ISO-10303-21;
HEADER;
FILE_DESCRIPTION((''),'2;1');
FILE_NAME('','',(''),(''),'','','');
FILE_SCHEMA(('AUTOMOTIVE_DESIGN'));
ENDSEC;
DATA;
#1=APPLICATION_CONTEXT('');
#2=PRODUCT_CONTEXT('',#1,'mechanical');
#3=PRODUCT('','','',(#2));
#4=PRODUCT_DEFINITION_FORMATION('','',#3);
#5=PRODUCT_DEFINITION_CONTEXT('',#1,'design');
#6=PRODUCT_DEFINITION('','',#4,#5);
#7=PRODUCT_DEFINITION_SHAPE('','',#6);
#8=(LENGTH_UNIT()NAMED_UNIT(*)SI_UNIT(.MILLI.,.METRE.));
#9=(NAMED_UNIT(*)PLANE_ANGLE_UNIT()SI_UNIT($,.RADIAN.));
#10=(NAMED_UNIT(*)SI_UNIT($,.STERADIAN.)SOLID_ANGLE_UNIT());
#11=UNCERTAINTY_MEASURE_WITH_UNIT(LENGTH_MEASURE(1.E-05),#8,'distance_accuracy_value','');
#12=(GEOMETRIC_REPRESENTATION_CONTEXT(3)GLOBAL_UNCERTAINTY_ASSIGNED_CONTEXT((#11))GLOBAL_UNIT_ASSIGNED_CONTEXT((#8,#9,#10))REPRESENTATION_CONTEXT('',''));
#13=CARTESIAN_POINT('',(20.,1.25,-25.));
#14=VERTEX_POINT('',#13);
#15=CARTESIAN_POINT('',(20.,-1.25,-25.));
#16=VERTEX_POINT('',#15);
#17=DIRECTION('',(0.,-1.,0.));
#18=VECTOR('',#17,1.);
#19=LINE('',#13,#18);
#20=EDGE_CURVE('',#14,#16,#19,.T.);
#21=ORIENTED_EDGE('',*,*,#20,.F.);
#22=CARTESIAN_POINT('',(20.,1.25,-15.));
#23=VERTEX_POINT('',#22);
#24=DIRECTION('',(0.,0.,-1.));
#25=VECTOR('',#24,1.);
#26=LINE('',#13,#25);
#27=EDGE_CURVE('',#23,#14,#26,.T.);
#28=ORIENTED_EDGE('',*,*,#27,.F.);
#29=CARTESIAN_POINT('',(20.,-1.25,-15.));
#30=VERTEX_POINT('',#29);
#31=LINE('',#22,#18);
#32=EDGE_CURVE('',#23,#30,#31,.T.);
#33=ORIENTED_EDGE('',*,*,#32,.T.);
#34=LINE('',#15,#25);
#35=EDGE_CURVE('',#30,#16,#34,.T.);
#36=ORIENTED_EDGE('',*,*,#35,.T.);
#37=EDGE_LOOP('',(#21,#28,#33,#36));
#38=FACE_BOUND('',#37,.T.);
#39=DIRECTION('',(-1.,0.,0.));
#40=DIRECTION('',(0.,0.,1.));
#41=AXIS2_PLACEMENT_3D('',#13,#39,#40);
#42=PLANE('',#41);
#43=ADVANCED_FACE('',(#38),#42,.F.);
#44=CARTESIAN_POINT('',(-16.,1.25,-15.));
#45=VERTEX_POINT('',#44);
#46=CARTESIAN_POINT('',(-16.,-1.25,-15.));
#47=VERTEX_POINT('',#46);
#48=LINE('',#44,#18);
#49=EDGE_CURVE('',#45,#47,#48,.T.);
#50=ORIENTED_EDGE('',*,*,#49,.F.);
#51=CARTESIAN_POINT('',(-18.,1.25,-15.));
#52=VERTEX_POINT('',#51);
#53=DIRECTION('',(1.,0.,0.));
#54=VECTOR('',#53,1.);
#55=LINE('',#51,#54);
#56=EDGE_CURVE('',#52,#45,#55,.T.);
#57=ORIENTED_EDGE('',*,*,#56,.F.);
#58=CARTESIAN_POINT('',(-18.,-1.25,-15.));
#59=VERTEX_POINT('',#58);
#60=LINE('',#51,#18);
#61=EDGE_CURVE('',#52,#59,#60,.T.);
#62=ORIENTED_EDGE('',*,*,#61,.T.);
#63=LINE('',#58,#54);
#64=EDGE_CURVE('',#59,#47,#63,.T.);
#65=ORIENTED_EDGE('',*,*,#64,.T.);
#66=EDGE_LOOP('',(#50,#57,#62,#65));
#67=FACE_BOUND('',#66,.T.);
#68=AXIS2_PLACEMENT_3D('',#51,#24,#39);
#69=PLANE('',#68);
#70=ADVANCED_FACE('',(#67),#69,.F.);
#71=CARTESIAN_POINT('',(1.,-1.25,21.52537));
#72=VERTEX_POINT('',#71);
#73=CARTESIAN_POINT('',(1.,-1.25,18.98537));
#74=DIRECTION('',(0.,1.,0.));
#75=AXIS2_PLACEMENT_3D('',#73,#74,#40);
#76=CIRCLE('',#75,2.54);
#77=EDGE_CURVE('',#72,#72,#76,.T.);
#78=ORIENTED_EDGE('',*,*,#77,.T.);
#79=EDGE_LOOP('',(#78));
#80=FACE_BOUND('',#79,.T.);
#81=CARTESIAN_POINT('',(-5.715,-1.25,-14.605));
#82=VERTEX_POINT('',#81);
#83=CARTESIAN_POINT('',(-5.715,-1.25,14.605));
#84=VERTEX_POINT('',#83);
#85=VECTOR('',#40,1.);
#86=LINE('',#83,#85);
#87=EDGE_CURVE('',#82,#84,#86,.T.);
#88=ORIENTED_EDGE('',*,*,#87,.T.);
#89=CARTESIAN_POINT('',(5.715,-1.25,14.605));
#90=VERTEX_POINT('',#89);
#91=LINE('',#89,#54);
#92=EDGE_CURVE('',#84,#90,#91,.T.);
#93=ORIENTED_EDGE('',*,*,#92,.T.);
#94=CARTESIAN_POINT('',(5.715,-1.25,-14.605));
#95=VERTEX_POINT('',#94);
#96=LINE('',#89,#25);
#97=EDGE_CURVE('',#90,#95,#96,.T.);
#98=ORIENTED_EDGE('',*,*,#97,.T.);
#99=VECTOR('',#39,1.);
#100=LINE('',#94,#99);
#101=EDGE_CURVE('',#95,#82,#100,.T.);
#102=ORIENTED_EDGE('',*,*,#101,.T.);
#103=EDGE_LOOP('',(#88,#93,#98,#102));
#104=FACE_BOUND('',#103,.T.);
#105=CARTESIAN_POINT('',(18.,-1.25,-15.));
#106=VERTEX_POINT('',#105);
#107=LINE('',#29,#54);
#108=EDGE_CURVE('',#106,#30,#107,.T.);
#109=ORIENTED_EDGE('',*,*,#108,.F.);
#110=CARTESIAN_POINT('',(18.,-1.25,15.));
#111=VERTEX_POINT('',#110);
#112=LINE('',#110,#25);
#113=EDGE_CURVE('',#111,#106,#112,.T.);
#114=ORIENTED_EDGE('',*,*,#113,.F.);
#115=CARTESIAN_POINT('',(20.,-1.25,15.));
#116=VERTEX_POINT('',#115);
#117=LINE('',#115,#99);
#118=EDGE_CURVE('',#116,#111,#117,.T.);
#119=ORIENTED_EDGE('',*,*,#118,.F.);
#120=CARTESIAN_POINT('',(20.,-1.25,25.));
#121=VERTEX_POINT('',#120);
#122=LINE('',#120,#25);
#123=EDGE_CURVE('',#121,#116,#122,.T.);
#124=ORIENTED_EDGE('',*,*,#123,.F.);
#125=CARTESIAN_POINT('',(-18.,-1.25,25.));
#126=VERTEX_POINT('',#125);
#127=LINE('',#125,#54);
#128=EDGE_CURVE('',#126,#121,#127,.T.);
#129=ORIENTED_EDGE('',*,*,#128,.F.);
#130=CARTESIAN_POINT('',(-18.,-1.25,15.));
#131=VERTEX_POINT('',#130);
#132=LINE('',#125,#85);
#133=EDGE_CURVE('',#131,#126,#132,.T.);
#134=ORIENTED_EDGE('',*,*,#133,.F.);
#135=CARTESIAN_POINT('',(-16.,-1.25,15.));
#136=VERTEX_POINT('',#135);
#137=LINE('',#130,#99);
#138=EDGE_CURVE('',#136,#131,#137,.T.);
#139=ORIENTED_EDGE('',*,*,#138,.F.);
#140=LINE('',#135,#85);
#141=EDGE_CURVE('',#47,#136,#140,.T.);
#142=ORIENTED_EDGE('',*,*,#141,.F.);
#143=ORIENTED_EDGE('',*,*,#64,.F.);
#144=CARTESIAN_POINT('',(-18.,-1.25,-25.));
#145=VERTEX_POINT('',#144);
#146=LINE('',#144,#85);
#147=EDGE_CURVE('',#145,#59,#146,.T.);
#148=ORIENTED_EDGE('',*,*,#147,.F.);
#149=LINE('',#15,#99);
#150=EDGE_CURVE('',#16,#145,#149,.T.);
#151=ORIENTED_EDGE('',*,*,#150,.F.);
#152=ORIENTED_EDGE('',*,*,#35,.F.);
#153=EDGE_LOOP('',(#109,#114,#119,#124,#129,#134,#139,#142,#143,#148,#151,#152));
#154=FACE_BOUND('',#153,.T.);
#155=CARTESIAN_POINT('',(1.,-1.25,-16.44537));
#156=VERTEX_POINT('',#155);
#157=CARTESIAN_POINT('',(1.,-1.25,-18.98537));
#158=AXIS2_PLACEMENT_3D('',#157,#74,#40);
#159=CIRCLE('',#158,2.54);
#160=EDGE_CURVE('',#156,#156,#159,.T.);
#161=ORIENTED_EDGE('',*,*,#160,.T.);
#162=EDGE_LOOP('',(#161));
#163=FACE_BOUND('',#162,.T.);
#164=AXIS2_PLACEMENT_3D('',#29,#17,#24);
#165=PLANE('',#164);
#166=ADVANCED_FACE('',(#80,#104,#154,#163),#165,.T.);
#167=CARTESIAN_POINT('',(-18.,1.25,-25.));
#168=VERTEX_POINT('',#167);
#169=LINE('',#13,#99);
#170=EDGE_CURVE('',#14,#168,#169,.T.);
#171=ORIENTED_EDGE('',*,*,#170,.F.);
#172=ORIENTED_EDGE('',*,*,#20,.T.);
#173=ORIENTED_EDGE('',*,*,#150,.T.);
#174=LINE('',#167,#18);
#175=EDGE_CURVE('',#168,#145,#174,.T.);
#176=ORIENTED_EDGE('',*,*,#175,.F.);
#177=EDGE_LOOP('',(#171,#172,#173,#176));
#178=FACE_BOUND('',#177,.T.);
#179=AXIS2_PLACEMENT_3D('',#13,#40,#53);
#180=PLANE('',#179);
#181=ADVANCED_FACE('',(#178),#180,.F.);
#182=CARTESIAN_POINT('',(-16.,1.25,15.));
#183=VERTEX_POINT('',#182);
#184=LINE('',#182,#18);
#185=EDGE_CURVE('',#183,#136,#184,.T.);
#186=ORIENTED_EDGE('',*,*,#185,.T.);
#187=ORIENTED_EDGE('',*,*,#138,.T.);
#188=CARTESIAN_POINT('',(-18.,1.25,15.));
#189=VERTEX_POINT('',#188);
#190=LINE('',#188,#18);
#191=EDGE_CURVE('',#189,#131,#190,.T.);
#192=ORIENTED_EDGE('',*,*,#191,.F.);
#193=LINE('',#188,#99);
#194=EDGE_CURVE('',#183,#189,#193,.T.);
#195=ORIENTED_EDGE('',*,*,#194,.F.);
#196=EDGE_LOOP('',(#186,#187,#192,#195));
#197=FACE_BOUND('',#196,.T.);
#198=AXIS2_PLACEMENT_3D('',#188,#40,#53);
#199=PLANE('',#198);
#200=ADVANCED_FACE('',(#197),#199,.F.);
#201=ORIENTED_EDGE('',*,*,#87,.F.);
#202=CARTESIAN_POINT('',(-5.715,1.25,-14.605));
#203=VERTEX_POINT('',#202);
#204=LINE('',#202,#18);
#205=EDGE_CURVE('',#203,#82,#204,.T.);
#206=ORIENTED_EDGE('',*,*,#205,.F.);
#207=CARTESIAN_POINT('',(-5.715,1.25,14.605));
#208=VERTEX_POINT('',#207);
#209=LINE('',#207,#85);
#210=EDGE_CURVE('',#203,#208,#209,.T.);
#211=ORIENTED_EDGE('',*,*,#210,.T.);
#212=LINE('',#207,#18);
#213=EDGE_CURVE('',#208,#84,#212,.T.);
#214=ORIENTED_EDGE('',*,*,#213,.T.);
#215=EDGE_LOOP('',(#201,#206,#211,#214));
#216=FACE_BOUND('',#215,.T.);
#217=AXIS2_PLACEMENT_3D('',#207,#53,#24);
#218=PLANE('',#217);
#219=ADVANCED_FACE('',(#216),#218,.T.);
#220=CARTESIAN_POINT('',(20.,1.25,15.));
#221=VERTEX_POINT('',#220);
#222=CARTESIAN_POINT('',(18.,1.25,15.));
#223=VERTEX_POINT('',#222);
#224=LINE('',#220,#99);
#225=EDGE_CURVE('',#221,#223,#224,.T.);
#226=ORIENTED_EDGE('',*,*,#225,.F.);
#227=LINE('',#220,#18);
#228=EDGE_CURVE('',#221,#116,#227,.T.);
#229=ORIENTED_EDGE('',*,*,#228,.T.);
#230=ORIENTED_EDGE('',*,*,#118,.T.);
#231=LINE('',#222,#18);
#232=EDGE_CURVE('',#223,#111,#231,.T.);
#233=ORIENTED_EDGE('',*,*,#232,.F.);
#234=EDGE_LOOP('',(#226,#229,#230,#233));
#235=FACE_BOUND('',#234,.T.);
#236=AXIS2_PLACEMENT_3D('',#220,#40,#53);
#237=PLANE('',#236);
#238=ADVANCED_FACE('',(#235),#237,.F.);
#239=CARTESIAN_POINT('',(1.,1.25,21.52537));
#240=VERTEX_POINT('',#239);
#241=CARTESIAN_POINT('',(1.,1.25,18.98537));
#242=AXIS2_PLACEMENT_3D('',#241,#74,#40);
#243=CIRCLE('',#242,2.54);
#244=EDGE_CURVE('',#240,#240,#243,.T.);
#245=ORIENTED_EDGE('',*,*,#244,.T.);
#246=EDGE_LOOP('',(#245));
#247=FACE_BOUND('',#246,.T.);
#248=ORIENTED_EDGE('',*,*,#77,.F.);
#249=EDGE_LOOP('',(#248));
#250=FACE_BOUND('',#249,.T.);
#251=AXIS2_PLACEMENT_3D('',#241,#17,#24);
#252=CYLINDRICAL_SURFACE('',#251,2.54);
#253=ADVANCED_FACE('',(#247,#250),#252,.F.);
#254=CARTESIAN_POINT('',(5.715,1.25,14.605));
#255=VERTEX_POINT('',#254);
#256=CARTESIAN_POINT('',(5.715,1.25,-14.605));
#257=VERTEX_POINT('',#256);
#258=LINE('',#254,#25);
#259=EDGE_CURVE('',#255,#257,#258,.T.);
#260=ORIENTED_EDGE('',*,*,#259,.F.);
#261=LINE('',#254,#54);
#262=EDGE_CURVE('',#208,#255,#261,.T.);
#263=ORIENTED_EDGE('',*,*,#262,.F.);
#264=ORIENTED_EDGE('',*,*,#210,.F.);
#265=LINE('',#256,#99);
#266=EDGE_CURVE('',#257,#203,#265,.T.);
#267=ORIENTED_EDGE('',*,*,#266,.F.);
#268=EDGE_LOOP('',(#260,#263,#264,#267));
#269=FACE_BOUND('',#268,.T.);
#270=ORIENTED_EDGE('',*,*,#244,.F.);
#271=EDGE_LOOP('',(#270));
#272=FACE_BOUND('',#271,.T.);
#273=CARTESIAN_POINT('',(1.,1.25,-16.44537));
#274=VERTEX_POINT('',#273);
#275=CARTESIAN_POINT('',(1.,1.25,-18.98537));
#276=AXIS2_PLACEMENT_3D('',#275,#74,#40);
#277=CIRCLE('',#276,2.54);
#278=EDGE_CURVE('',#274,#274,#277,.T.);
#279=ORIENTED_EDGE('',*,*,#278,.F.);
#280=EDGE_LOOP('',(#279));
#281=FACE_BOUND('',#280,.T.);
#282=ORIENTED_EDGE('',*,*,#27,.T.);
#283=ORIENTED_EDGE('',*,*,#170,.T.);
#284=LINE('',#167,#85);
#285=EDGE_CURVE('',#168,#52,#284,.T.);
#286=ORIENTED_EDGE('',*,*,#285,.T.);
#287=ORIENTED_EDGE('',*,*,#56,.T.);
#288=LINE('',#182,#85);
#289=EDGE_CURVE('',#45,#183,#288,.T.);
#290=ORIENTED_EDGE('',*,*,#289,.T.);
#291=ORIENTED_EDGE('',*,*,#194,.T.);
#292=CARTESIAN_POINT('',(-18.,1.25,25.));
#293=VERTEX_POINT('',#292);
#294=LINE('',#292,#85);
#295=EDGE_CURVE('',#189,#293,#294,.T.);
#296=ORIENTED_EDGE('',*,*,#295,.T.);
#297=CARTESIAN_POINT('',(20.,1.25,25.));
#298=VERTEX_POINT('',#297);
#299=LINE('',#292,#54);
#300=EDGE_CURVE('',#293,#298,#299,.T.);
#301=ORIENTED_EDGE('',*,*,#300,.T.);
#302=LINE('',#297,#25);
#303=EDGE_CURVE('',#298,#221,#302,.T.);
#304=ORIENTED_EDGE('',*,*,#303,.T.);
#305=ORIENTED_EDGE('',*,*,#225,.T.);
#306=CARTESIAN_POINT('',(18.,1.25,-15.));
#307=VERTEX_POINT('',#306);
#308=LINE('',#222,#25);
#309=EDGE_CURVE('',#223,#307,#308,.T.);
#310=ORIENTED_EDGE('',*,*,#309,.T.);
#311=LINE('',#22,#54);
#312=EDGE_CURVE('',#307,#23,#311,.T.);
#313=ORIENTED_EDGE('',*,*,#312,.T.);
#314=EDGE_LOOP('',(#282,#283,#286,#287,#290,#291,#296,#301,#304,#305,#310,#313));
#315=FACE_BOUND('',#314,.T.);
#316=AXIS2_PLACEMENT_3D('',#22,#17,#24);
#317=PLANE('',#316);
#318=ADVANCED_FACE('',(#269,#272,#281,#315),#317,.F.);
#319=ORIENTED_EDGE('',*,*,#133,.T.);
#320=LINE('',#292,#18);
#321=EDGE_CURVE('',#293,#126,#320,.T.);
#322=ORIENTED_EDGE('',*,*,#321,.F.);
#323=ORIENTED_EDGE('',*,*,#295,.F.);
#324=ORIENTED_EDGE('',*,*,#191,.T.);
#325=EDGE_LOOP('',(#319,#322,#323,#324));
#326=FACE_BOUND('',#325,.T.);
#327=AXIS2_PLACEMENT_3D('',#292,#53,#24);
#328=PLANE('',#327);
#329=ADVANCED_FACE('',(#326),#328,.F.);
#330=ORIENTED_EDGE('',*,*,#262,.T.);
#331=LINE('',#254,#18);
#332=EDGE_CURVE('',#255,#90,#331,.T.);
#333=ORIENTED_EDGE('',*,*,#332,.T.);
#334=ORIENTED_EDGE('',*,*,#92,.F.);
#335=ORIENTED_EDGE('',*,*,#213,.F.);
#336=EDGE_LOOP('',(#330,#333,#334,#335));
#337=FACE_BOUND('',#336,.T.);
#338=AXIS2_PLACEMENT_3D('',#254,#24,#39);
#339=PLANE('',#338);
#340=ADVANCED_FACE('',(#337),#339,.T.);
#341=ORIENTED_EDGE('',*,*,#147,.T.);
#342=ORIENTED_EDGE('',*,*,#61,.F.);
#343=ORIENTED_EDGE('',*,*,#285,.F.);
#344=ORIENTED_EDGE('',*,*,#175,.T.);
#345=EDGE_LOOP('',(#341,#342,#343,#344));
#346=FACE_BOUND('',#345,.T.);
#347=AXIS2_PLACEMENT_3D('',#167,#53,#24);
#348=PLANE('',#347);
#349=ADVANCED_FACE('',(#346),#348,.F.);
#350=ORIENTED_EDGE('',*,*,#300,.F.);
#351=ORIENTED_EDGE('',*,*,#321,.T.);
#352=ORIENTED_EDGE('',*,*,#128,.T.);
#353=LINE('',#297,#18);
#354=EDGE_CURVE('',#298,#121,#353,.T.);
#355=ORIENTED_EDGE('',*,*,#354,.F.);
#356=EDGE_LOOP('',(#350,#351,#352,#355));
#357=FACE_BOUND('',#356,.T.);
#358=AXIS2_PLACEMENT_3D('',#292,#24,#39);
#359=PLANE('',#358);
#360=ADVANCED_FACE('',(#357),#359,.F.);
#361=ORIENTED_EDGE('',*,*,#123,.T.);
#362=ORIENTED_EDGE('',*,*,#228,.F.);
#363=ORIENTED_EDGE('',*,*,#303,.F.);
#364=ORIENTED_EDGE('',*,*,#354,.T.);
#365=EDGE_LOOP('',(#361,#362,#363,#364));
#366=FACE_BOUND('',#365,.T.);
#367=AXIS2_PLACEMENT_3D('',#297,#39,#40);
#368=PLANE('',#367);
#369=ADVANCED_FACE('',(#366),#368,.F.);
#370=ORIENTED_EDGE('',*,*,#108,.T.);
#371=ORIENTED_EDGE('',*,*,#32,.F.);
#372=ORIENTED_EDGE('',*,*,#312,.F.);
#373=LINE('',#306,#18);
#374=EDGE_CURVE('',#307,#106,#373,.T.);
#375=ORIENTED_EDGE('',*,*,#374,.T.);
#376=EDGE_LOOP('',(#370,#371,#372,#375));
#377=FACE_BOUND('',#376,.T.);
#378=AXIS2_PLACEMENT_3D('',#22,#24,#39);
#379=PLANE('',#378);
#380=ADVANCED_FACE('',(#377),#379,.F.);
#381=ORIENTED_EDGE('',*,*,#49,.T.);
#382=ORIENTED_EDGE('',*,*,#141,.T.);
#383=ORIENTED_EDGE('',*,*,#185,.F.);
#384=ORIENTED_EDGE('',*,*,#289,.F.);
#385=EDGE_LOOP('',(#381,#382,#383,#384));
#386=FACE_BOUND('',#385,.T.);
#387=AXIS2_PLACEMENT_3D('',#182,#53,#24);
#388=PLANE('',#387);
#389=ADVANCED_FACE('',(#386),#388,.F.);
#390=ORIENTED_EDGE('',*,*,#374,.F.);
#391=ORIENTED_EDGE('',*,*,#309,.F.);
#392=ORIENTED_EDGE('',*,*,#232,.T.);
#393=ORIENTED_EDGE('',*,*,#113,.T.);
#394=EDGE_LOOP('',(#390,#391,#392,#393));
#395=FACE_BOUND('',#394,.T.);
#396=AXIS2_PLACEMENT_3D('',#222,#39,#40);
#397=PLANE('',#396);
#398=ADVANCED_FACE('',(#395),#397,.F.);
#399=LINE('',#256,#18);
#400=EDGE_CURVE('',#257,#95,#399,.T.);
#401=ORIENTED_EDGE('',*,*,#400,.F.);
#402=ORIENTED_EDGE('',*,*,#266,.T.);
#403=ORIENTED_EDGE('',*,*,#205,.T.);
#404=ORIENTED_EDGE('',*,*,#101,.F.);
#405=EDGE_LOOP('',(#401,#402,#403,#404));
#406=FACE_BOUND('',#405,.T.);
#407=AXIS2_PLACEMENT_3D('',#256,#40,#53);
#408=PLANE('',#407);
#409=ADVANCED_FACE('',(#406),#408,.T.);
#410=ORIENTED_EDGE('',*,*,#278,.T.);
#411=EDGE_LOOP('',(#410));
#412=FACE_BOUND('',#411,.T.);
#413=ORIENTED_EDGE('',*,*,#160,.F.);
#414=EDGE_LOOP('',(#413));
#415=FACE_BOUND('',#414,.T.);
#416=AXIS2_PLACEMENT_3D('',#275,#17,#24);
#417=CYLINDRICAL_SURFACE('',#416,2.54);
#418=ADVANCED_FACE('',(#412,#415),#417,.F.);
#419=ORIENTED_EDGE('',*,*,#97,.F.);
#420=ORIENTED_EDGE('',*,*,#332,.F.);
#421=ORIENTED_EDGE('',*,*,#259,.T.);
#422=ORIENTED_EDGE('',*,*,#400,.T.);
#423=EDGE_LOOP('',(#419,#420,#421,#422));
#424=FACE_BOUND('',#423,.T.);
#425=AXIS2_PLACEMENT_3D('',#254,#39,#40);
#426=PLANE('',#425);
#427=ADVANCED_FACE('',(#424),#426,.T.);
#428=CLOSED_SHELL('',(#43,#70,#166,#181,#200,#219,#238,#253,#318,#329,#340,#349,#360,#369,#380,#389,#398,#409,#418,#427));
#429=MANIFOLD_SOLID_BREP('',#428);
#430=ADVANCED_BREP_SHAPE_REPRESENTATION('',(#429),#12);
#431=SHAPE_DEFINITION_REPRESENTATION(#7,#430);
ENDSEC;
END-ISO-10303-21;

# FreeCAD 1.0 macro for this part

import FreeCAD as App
import Part
import Sketcher

V = App.Vector
Q = App.Units.Quantity


def add_polygon(sketch, points):
    """Adds a closed chain of lines whose ends are joined by coincident constraints."""
    first, n = sketch.GeometryCount, len(points)
    for a, b in zip(points, points[1:] + points[:1]):
        sketch.addGeometry(Part.LineSegment(App.Vector(*a, 0), App.Vector(*b, 0)), False)
    for i in range(n):
        sketch.addConstraint(Sketcher.Constraint("Coincident", first + i, 2, first + (i + 1) % n, 1))

doc = App.newDocument("Part")
body = doc.addObject("PartDesign::Body", "Body")

# Sketch on XZ plane
sketch1 = doc.addObject("Sketcher::SketchObject", "Sketch")
body.addObject(sketch1)
sketch1.AttachmentSupport = (doc.XZ_Plane, [""])
sketch1.MapMode = "FlatFace"
add_polygon(sketch1, [(-18, -15), (-16, -15), (-16, 15), (-18, 15), (-18, 25), (20, 25), (20, 15), (18, 15), (18, -15), (20, -15), (20, -25), (-18, -25)])  # lines 0-11
sketch1.addGeometry(Part.Circle(V(1, 19, 0), V(0, 0, 1), 2.5), False)  # 12
add_polygon(sketch1, [(5.7, 14.6), (-5.7, 14.6), (-5.7, -14.6), (5.7, -14.6)])  # lines 13-16
sketch1.addGeometry(Part.Circle(V(1, -19, 0), V(0, 0, 1), 2.5), False)  # 17
sketch1.addConstraint(Sketcher.Constraint("Horizontal", 0))
sketch1.addConstraint(Sketcher.Constraint("Vertical", 1))
sketch1.addConstraint(Sketcher.Constraint("Horizontal", 2))
sketch1.addConstraint(Sketcher.Constraint("Vertical", 3))
sketch1.addConstraint(Sketcher.Constraint("Horizontal", 4))
sketch1.addConstraint(Sketcher.Constraint("Vertical", 5))
sketch1.addConstraint(Sketcher.Constraint("Horizontal", 6))
sketch1.addConstraint(Sketcher.Constraint("Vertical", 7))
sketch1.addConstraint(Sketcher.Constraint("Horizontal", 8))
sketch1.addConstraint(Sketcher.Constraint("Vertical", 9))
sketch1.addConstraint(Sketcher.Constraint("Horizontal", 10))
sketch1.addConstraint(Sketcher.Constraint("Vertical", 11))
sketch1.addConstraint(Sketcher.Constraint("Horizontal", 13))
sketch1.addConstraint(Sketcher.Constraint("Vertical", 14))
sketch1.addConstraint(Sketcher.Constraint("Horizontal", 15))
sketch1.addConstraint(Sketcher.Constraint("Vertical", 16))
sketch1.addConstraint(Sketcher.Constraint("Equal", 12, 17))
sketch1.addConstraint(Sketcher.Constraint("Symmetric", 2, 2, 7, 2, -1, 1))
sketch1.addConstraint(Sketcher.Constraint("Symmetric", 6, 2, 11, 2, -1, 1))
sketch1.addConstraint(Sketcher.Constraint("Symmetric", 13, 2, 15, 2, -1, 1))
sketch1.addConstraint(Sketcher.Constraint("Symmetric", 12, 3, 17, 3, -1))
sketch1.addConstraint(Sketcher.Constraint("Symmetric", 5, 2, 8, 2, -1))
sketch1.addConstraint(Sketcher.Constraint("Equal", 2, 6))
sketch1.addConstraint(Sketcher.Constraint("Equal", 5, 9))
sketch1.addConstraint(Sketcher.Constraint("Diameter", 12, Q("5.08 mm")))
sketch1.addConstraint(Sketcher.Constraint("DistanceX", 0, 1, 0, 2, Q("2 mm")))
sketch1.addConstraint(Sketcher.Constraint("DistanceX", 4, 1, 4, 2, Q("38 mm")))
sketch1.addConstraint(Sketcher.Constraint("DistanceY", 1, 1, 1, 2, Q("30 mm")))
sketch1.addConstraint(Sketcher.Constraint("DistanceY", 3, 1, 3, 2, Q("10 mm")))
sketch1.addConstraint(Sketcher.Constraint("DistanceX", -1, 1, 12, 3, Q("1 mm")))
sketch1.addConstraint(Sketcher.Constraint("DistanceX", 13, 2, 13, 1, Q("11.43 mm")))
sketch1.addConstraint(Sketcher.Constraint("DistanceY", 14, 2, 14, 1, Q("29.21 mm")))
sketch1.addConstraint(Sketcher.Constraint("DistanceY", -1, 1, 12, 3, Q("18.98537 mm")))
pad1 = doc.addObject("PartDesign::Pad", "Pad")
body.addObject(pad1)
pad1.Profile = sketch1
pad1.Length = 2.5
pad1.Midplane = True

doc.recompute()
